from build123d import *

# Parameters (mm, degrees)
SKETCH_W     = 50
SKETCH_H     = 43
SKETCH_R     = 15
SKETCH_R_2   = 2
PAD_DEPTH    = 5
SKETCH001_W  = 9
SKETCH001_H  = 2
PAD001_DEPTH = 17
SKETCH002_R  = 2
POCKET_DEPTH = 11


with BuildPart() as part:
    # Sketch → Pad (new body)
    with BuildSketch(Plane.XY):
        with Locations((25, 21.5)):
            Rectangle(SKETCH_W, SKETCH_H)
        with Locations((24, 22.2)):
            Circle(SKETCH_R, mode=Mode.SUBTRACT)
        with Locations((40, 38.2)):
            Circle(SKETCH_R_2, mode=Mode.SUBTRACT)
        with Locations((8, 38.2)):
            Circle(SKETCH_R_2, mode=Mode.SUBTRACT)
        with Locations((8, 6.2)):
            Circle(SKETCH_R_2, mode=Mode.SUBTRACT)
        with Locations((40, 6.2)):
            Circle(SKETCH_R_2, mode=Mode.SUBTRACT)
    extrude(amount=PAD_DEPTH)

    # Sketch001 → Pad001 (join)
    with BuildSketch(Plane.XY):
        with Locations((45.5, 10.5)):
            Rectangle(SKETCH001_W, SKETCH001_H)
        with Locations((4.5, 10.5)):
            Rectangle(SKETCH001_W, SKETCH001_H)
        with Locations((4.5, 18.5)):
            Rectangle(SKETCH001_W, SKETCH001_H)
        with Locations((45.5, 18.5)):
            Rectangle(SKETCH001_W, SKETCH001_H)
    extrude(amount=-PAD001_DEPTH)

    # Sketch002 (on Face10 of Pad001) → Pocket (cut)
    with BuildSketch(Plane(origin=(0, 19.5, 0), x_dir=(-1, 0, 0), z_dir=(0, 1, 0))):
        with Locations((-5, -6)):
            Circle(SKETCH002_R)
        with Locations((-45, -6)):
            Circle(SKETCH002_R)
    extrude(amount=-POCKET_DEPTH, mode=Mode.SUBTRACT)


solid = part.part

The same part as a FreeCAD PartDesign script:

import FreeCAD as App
import Part
import Sketcher

V = App.Vector
Q = App.Units.Quantity

doc = App.newDocument("Part")
body = doc.addObject("PartDesign::Body", "Body")

sketch1 = body.newObject("Sketcher::SketchObject", "Sketch")
sketch1.AttachmentSupport = (doc.getObject("XY_Plane"), [""])
sketch1.MapMode = "FlatFace"
sketch1.addGeometry([
    Part.LineSegment(V(0, 43, 0), V(0, 0, 0)),
    Part.LineSegment(V(0, 0, 0), V(50, 0, 0)),
    Part.LineSegment(V(50, 0, 0), V(50, 43, 0)),
    Part.LineSegment(V(50, 43, 0), V(0, 43, 0)),
    Part.Circle(V(8, 6.2, 0), V(0, 0, 1), 2),
    Part.Circle(V(40, 6.2, 0), V(0, 0, 1), 2),
    Part.Circle(V(8, 38.2, 0), V(0, 0, 1), 2),
    Part.Circle(V(24, 22.2, 0), V(0, 0, 1), 15),
    Part.Circle(V(40, 38.2, 0), V(0, 0, 1), 2),
], False)
sketch1.addConstraint([
    Sketcher.Constraint("Coincident", 0, 2, 1, 1),
    Sketcher.Constraint("Coincident", 1, 2, 2, 1),
    Sketcher.Constraint("Coincident", 2, 2, 3, 1),
    Sketcher.Constraint("Coincident", 3, 2, 0, 1),
    Sketcher.Constraint("Vertical", 0),
    Sketcher.Constraint("Horizontal", 1),
    Sketcher.Constraint("Vertical", 2),
    Sketcher.Constraint("Horizontal", 3),
    Sketcher.Constraint("Coincident", 0, 2, -1, 1),
    Sketcher.Constraint("Equal", 4, 5),
    Sketcher.Constraint("Equal", 5, 6),
    Sketcher.Constraint("Equal", 6, 8),
    Sketcher.Constraint("Horizontal", 4, 3, 5, 3),
    Sketcher.Constraint("Horizontal", 6, 3, 8, 3),
    Sketcher.Constraint("Vertical", 4, 3, 6, 3),
    Sketcher.Constraint("Vertical", 5, 3, 8, 3),
    Sketcher.Constraint("Diameter", 4, Q("4 mm")),
    Sketcher.Constraint("Diameter", 7, Q("30 mm")),
    Sketcher.Constraint("DistanceX", 1, 1, 1, 2, Q("50 mm")),
    Sketcher.Constraint("DistanceY", 0, 2, 0, 1, Q("43 mm")),
    Sketcher.Constraint("DistanceX", -1, 1, 4, 3, Q("8 mm")),
    Sketcher.Constraint("DistanceX", -1, 1, 5, 3, Q("40 mm")),
    Sketcher.Constraint("DistanceX", -1, 1, 7, 3, Q("24 mm")),
    Sketcher.Constraint("DistanceY", 4, 3, 6, 3, Q("32 mm")),
    Sketcher.Constraint("DistanceY", 4, 3, 7, 3, Q("16 mm")),
    Sketcher.Constraint("DistanceY", -1, 1, 4, 3, Q("6.2 mm")),
])
pad1 = body.newObject("PartDesign::Pad", "Pad")
pad1.Profile = sketch1
pad1.Length = 5

sketch2 = body.newObject("Sketcher::SketchObject", "Sketch001")
sketch2.AttachmentSupport = (doc.getObject("XY_Plane"), [""])
sketch2.MapMode = "FlatFace"
sketch2.addGeometry([
    Part.LineSegment(V(41, 11.5, 0), V(41, 9.5, 0)),
    Part.LineSegment(V(41, 9.5, 0), V(50, 9.5, 0)),
    Part.LineSegment(V(50, 9.5, 0), V(50, 11.5, 0)),
    Part.LineSegment(V(50, 11.5, 0), V(41, 11.5, 0)),
    Part.LineSegment(V(0, 11.5, 0), V(0, 9.5, 0)),
    Part.LineSegment(V(0, 9.5, 0), V(9, 9.5, 0)),
    Part.LineSegment(V(9, 9.5, 0), V(9, 11.5, 0)),
    Part.LineSegment(V(9, 11.5, 0), V(0, 11.5, 0)),
    Part.LineSegment(V(0, 19.5, 0), V(0, 17.5, 0)),
    Part.LineSegment(V(0, 17.5, 0), V(9, 17.5, 0)),
    Part.LineSegment(V(9, 17.5, 0), V(9, 19.5, 0)),
    Part.LineSegment(V(9, 19.5, 0), V(0, 19.5, 0)),
    Part.LineSegment(V(41, 19.5, 0), V(41, 17.5, 0)),
    Part.LineSegment(V(41, 17.5, 0), V(50, 17.5, 0)),
    Part.LineSegment(V(50, 17.5, 0), V(50, 19.5, 0)),
    Part.LineSegment(V(50, 19.5, 0), V(41, 19.5, 0)),
], False)
sketch2.addConstraint([
    Sketcher.Constraint("Coincident", 0, 2, 1, 1),
    Sketcher.Constraint("Coincident", 1, 2, 2, 1),
    Sketcher.Constraint("Coincident", 2, 2, 3, 1),
    Sketcher.Constraint("Coincident", 3, 2, 0, 1),
    Sketcher.Constraint("Coincident", 4, 2, 5, 1),
    Sketcher.Constraint("Coincident", 5, 2, 6, 1),
    Sketcher.Constraint("Coincident", 6, 2, 7, 1),
    Sketcher.Constraint("Coincident", 7, 2, 4, 1),
    Sketcher.Constraint("Coincident", 8, 2, 9, 1),
    Sketcher.Constraint("Coincident", 9, 2, 10, 1),
    Sketcher.Constraint("Coincident", 10, 2, 11, 1),
    Sketcher.Constraint("Coincident", 11, 2, 8, 1),
    Sketcher.Constraint("Coincident", 12, 2, 13, 1),
    Sketcher.Constraint("Coincident", 13, 2, 14, 1),
    Sketcher.Constraint("Coincident", 14, 2, 15, 1),
    Sketcher.Constraint("Coincident", 15, 2, 12, 1),
    Sketcher.Constraint("Vertical", 0),
    Sketcher.Constraint("Horizontal", 1),
    Sketcher.Constraint("Vertical", 2),
    Sketcher.Constraint("Horizontal", 3),
    Sketcher.Constraint("Vertical", 4),
    Sketcher.Constraint("Horizontal", 5),
    Sketcher.Constraint("Vertical", 6),
    Sketcher.Constraint("Horizontal", 7),
    Sketcher.Constraint("Vertical", 8),
    Sketcher.Constraint("Horizontal", 9),
    Sketcher.Constraint("Vertical", 10),
    Sketcher.Constraint("Horizontal", 11),
    Sketcher.Constraint("Vertical", 12),
    Sketcher.Constraint("Horizontal", 13),
    Sketcher.Constraint("Vertical", 14),
    Sketcher.Constraint("Horizontal", 15),
    Sketcher.Constraint("PointOnObject", 4, 2, -2),
    Sketcher.Constraint("PointOnObject", 8, 2, -2),
    Sketcher.Constraint("Horizontal", 1, 2, 4, 2),
    Sketcher.Constraint("Horizontal", 3, 2, 6, 2),
    Sketcher.Constraint("Horizontal", 9, 2, 12, 2),
    Sketcher.Constraint("Horizontal", 11, 2, 14, 2),
    Sketcher.Constraint("Vertical", 6, 2, 9, 2),
    Sketcher.Constraint("Vertical", 3, 2, 12, 2),
    Sketcher.Constraint("Vertical", 2, 2, 13, 2),
    Sketcher.Constraint("Equal", 3, 5),
    Sketcher.Constraint("Equal", 6, 8),
    Sketcher.Constraint("DistanceX", 1, 1, 1, 2, Q("9 mm")),
    Sketcher.Constraint("DistanceY", 0, 2, 0, 1, Q("2 mm")),
    Sketcher.Constraint("DistanceX", -1, 1, 0, 2, Q("41 mm")),
    Sketcher.Constraint("DistanceY", 7, 2, 8, 2, Q("6 mm")),
    Sketcher.Constraint("DistanceY", -1, 1, 0, 2, Q("9.5 mm")),
])
pad2 = body.newObject("PartDesign::Pad", "Pad001")
pad2.Profile = sketch2
pad2.Length = 17
pad2.Reversed = True

sketch3 = body.newObject("Sketcher::SketchObject", "Sketch002")
sketch3.AttachmentSupport = (doc.getObject("XZ_Plane"), [""])
sketch3.MapMode = "FlatFace"
sketch3.AttachmentOffset = App.Placement(V(0, 0, -19.5), App.Rotation())
sketch3.addGeometry([
    Part.Circle(V(5, -6, 0), V(0, 0, 1), 2),
    Part.Circle(V(45, -6, 0), V(0, 0, 1), 2),
], False)
sketch3.addConstraint([
    Sketcher.Constraint("Equal", 0, 1),
    Sketcher.Constraint("Horizontal", 0, 3, 1, 3),
    Sketcher.Constraint("Diameter", 0, Q("4 mm")),
    Sketcher.Constraint("DistanceX", -1, 1, 0, 3, Q("5 mm")),
    Sketcher.Constraint("DistanceY", 0, 3, -1, 1, Q("6 mm")),
    Sketcher.Constraint("DistanceX", -1, 1, 1, 3, Q("45 mm")),
])
pocket1 = body.newObject("PartDesign::Pocket", "Pocket")
pocket1.Profile = sketch3
pocket1.Length = 11
pocket1.Reversed = True

doc.recompute()
